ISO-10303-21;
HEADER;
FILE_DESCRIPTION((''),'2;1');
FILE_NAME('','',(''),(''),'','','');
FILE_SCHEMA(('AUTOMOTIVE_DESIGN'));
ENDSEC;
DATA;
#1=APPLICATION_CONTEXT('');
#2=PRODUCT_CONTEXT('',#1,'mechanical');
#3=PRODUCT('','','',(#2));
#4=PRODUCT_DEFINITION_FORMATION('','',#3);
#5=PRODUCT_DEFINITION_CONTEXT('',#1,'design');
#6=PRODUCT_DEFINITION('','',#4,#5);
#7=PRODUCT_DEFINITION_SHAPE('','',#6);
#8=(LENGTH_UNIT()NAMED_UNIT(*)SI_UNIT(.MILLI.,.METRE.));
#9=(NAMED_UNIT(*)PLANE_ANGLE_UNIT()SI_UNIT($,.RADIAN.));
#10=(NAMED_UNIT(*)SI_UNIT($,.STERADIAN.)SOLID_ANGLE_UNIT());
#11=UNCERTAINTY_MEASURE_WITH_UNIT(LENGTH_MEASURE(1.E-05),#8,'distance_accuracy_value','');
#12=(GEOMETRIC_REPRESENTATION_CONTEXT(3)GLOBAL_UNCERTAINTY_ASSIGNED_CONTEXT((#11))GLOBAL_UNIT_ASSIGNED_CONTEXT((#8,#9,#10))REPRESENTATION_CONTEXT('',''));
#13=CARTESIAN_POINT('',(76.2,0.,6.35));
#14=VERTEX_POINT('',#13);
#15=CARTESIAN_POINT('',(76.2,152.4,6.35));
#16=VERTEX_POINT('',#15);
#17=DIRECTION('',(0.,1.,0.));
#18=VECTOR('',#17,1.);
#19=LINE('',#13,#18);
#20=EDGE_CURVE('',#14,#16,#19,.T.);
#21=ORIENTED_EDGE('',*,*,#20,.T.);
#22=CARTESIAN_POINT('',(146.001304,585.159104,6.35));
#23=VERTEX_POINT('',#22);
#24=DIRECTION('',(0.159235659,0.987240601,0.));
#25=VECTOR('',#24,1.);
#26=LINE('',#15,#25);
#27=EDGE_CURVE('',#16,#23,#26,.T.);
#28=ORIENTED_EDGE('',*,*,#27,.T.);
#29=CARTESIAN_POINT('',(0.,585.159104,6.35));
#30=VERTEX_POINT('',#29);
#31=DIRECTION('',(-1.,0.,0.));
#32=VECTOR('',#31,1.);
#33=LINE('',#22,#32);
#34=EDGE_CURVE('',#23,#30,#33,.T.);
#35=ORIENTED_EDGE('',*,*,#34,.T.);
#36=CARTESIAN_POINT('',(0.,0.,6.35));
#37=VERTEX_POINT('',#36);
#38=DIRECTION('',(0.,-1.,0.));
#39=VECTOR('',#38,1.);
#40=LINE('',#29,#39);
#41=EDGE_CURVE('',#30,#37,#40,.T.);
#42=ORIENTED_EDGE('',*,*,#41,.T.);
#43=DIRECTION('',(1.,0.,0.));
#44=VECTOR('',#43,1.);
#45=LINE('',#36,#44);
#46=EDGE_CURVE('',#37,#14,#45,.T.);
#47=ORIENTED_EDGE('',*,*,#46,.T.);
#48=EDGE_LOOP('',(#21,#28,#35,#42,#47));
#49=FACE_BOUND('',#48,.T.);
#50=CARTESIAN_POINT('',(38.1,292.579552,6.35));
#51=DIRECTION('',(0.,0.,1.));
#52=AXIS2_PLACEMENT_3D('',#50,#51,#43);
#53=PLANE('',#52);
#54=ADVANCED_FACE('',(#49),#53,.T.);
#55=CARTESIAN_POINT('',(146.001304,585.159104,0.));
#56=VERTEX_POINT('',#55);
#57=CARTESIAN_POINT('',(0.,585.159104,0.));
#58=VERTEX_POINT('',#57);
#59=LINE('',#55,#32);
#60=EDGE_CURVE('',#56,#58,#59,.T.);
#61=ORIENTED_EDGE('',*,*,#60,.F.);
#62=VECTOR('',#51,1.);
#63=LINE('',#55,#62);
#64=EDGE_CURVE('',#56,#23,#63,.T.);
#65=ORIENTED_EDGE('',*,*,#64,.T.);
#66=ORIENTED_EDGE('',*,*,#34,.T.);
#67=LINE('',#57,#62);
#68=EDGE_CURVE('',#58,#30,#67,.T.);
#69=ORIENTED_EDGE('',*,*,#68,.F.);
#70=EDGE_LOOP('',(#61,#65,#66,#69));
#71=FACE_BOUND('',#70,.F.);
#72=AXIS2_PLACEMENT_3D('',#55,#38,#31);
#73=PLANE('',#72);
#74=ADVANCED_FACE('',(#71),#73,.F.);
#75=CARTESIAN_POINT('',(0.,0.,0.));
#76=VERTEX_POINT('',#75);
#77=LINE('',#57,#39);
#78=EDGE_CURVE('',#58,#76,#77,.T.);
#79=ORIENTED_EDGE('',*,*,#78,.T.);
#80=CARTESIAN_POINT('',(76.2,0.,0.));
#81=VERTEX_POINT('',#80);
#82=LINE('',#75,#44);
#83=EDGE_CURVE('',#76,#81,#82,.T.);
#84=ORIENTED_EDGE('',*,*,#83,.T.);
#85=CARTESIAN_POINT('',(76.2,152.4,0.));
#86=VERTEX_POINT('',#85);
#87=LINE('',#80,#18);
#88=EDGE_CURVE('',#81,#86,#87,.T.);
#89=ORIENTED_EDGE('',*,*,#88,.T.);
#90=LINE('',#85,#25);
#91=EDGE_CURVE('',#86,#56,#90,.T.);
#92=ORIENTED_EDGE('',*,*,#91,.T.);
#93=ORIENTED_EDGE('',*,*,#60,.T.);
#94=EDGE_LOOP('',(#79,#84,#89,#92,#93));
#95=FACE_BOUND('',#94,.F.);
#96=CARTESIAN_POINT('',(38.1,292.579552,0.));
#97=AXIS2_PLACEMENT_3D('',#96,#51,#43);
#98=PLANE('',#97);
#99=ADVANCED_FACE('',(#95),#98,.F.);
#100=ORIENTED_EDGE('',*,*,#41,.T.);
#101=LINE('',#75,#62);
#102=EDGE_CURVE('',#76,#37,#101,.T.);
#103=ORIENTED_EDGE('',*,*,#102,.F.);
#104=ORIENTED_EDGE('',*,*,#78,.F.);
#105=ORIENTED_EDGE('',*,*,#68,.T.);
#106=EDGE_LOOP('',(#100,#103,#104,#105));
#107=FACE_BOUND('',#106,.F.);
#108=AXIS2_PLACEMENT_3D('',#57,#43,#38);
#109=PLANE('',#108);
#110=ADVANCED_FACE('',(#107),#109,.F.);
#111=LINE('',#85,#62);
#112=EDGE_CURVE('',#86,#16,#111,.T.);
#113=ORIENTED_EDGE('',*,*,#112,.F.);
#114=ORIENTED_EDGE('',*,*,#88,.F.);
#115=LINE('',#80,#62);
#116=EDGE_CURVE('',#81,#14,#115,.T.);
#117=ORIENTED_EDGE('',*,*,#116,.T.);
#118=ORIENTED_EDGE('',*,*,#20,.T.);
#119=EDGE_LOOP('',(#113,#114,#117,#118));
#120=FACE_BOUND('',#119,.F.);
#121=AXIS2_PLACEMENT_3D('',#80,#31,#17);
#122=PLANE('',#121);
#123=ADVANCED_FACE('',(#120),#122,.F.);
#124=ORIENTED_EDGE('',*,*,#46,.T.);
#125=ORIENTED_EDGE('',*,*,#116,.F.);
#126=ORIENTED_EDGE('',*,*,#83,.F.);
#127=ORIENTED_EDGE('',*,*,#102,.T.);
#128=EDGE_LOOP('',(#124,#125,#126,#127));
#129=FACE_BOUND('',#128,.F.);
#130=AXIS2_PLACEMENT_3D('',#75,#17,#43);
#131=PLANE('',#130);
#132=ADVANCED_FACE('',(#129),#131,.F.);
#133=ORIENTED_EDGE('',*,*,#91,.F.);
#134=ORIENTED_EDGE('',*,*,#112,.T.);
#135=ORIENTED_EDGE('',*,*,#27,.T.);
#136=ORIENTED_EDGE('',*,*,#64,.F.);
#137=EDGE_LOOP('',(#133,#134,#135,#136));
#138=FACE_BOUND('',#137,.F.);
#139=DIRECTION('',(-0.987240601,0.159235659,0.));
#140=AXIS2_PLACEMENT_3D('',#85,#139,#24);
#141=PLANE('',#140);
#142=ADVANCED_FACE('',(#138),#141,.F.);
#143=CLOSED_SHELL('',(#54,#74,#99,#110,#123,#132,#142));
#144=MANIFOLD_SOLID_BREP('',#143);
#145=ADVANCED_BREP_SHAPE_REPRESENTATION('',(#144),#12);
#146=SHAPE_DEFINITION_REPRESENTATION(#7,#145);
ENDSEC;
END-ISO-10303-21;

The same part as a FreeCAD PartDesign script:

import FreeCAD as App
import Part
import Sketcher

V = App.Vector
Q = App.Units.Quantity


def add_polygon(sketch, points):
    """Adds a closed chain of lines whose ends are joined by coincident constraints."""
    first, n = sketch.GeometryCount, len(points)
    for a, b in zip(points, points[1:] + points[:1]):
        sketch.addGeometry(Part.LineSegment(App.Vector(*a, 0), App.Vector(*b, 0)), False)
    for i in range(n):
        sketch.addConstraint(Sketcher.Constraint("Coincident", first + i, 2, first + (i + 1) % n, 1))

doc = App.newDocument("Part")
body = doc.addObject("PartDesign::Body", "Body")

# Sketch on XY plane
sketch1 = body.newObject("Sketcher::SketchObject", "Sketch")
sketch1.AttachmentSupport = (doc.getObject("XY_Plane"), [""])
sketch1.MapMode = "FlatFace"
add_polygon(sketch1, [(0, 0), (76, 0), (76, 152), (146, 585), (0, 585)])  # lines 0-4
sketch1.addConstraint(Sketcher.Constraint("Horizontal", 0))
sketch1.addConstraint(Sketcher.Constraint("Vertical", 1))
sketch1.addConstraint(Sketcher.Constraint("Horizontal", 3))
sketch1.addConstraint(Sketcher.Constraint("Vertical", 4))
sketch1.addConstraint(Sketcher.Constraint("Coincident", 4, 2, -1, 1))
sketch1.addConstraint(Sketcher.Constraint("DistanceX", 0, 1, 0, 2, Q("3 in")))
sketch1.addConstraint(Sketcher.Constraint("DistanceY", 1, 1, 1, 2, Q("6 in")))
sketch1.addConstraint(Sketcher.Constraint("DistanceX", 3, 2, 3, 1, 146.001304))
sketch1.addConstraint(Sketcher.Constraint("DistanceY", 4, 2, 4, 1, 585.159104))
pad1 = body.newObject("PartDesign::Pad", "Pad")
pad1.Profile = sketch1
pad1.Length = Q("0.25 in")

doc.recompute()
